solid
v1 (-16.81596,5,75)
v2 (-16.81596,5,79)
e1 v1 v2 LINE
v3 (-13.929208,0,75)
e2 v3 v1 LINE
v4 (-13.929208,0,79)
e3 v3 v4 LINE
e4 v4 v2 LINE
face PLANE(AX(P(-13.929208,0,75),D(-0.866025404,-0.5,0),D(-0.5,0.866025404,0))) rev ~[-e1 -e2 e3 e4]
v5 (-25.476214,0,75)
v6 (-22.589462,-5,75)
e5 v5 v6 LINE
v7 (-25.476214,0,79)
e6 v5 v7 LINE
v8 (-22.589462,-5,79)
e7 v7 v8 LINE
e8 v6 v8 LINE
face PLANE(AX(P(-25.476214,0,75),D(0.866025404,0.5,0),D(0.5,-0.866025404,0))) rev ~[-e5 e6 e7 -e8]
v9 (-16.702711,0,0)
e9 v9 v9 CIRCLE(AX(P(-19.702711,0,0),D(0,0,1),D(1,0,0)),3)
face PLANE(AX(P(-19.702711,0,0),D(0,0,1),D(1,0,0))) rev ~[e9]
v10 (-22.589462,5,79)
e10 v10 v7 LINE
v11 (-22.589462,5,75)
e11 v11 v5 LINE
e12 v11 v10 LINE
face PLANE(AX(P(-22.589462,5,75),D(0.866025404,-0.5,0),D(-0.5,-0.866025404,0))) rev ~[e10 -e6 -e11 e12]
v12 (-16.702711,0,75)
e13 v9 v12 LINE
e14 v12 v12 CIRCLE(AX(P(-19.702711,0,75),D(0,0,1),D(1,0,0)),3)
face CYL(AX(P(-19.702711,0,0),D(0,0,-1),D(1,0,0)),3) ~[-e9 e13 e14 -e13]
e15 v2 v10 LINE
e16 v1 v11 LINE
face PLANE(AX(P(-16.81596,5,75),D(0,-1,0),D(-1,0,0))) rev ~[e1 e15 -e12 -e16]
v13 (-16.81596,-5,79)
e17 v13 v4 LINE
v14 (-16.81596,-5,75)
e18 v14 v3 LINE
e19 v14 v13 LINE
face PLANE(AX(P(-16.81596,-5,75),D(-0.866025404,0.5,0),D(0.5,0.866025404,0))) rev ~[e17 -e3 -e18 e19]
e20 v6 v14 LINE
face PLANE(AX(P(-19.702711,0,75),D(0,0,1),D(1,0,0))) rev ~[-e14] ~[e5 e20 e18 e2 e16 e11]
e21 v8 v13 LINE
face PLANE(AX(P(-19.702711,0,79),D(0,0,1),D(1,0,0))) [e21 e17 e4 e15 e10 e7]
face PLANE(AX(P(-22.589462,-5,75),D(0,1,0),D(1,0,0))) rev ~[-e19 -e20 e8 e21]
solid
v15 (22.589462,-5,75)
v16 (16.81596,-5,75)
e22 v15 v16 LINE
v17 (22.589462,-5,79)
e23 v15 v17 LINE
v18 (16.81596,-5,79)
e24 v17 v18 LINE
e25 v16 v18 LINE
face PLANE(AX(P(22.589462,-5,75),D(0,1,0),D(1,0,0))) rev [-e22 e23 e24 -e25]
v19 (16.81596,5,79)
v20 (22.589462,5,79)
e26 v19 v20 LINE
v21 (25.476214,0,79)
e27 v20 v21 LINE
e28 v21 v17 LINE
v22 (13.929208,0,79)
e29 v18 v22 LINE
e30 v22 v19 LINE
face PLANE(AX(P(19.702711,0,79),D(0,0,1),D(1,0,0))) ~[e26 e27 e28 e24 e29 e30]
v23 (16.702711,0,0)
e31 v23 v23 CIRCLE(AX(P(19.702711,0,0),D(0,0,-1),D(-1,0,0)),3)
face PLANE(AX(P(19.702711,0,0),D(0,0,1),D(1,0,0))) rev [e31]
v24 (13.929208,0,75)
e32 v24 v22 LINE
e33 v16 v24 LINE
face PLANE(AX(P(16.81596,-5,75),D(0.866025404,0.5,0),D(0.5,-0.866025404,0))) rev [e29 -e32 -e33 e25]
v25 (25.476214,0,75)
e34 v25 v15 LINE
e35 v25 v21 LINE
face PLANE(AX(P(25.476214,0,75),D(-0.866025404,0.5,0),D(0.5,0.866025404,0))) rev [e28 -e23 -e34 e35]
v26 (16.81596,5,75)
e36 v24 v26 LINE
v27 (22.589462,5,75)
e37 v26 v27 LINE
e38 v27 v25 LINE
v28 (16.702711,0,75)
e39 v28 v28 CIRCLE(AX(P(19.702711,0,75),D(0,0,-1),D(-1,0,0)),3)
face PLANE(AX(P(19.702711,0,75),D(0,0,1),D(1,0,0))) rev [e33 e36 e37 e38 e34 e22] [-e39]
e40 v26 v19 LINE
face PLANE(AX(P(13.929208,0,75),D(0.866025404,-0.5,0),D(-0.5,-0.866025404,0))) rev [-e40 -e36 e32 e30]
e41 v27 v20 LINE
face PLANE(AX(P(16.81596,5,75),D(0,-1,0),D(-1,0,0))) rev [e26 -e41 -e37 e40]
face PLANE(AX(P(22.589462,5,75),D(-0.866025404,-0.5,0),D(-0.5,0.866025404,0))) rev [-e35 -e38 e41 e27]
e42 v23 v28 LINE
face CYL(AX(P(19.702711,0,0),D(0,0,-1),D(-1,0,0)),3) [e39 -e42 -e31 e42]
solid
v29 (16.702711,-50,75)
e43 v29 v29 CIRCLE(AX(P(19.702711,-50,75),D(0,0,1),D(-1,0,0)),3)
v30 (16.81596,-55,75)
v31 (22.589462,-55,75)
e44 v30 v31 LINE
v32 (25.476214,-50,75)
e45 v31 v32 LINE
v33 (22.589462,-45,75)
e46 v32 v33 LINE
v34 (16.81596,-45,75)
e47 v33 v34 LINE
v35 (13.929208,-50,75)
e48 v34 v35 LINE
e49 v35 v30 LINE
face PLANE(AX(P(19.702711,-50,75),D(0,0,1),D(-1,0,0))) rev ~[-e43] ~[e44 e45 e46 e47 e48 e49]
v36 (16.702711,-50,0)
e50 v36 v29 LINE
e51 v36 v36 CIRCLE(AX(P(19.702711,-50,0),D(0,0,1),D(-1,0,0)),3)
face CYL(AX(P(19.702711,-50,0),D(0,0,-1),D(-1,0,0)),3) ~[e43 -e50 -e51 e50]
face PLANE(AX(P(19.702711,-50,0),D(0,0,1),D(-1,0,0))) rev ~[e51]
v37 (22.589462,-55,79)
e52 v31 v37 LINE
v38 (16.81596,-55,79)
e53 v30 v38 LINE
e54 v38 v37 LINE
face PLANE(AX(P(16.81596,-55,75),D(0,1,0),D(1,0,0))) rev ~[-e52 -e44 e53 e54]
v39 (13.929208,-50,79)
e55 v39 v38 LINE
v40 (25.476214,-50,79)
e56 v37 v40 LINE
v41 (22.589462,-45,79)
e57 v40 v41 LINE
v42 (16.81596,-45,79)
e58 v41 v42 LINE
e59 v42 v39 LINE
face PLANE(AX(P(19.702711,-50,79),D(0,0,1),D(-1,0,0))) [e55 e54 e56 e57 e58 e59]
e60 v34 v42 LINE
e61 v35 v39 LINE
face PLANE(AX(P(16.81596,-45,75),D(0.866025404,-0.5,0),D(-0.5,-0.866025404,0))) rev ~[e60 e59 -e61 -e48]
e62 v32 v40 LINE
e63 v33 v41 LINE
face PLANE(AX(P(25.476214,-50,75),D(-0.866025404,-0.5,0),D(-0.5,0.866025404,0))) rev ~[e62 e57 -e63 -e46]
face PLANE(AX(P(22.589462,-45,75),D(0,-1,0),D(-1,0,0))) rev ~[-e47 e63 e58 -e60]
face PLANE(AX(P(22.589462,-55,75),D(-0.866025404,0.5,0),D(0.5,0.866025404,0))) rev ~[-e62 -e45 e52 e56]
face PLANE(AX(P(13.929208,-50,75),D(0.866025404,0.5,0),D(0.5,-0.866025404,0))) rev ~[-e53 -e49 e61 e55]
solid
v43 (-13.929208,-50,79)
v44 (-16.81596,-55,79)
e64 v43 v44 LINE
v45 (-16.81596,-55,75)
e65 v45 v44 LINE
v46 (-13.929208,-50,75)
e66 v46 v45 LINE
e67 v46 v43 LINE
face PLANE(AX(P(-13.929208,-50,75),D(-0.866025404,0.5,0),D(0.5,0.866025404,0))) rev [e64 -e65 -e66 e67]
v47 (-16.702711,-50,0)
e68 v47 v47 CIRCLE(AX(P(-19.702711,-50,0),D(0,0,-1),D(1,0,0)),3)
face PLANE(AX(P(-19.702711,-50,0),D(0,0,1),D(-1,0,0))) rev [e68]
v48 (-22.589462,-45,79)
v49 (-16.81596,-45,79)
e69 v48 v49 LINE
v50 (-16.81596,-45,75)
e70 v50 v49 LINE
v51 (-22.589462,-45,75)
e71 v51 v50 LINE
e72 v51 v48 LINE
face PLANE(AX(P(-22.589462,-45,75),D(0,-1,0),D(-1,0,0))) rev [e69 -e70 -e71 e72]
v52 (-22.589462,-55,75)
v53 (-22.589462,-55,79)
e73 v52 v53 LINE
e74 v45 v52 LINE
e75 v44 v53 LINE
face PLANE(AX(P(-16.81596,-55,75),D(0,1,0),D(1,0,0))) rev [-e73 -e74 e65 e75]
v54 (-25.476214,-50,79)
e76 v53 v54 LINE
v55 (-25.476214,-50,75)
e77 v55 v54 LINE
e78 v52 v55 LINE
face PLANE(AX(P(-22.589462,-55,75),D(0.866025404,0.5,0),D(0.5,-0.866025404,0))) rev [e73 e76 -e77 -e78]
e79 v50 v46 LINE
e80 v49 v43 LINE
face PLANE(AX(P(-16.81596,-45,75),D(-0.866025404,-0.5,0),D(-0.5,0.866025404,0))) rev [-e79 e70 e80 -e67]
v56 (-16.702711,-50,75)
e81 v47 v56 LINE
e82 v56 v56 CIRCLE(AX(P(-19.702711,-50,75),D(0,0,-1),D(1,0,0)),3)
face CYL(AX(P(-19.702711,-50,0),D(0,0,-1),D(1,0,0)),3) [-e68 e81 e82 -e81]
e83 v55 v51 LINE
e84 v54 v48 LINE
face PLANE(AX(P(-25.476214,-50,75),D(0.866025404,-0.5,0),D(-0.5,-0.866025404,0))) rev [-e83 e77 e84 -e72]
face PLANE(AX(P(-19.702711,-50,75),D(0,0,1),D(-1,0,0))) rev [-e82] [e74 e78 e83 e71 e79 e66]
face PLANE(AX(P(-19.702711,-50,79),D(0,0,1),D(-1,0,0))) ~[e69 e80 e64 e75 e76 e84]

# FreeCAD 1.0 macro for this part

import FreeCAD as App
import Part
import Sketcher
from FreeCAD import Vector
Q = App.Units.Quantity

doc = App.newDocument("Part")
params = doc.addObject("Spreadsheet::Sheet", "Params")
for row, (alias, value) in enumerate([
    ("sketch1_diameter", "6 mm"),
    ("pad1_length", "75 mm"),
    ("sketch2_diameter", "6 mm"),
    ("pad2_length", "75 mm"),
    ("pad3_length", "4 mm"),
    ("sketch4_diameter", "6 mm"),
    ("pad4_length", "75 mm"),
    ("sketch5_diameter", "6 mm"),
    ("pad5_length", "75 mm"),
], start=1):
    params.set(f"A{row}", alias)
    params.set(f"B{row}", "=" + value)
    params.setAlias(f"B{row}", alias)

body = doc.addObject("PartDesign::Body", "Body")

sketch1 = body.newObject("Sketcher::SketchObject", "Sketch")
sketch1.AttachmentSupport = (doc.getObject("XY_Plane"), [""])
sketch1.MapMode = "FlatFace"
sketch1.addGeometry(Part.Circle(Vector(-8.5, 0, 0), Vector(0, 0, 1), 3), False)
sketch1.addConstraint([
    Sketcher.Constraint("PointOnObject", 0, 3, -1),
    Sketcher.Constraint("Diameter", 0, Q("6 mm")),
    Sketcher.Constraint("DistanceX", 0, 3, -1, 1, Q("8.516658 mm")),
])
sketch1.setExpression("Constraints[1]", "Params.sketch1_diameter")
pad1 = body.newObject("PartDesign::Pad", "Pad")
pad1.Profile = sketch1
pad1.setExpression("Length", "Params.pad1_length")
body2 = doc.addObject("PartDesign::Body", "Body001")

sketch2 = body2.newObject("Sketcher::SketchObject", "Sketch001")
sketch2.AttachmentSupport = (doc.getObject("XY_Plane001"), [""])
sketch2.MapMode = "FlatFace"
sketch2.addGeometry(Part.Circle(Vector(-19.7, 0, 0), Vector(0, 0, 1), 3), False)
sketch2.addConstraint([
    Sketcher.Constraint("PointOnObject", 0, 3, -1),
    Sketcher.Constraint("Diameter", 0, Q("6 mm")),
    Sketcher.Constraint("DistanceX", 0, 3, -1, 1, Q("19.702711 mm")),
])
sketch2.setExpression("Constraints[1]", "Params.sketch2_diameter")
pad2 = body2.newObject("PartDesign::Pad", "Pad001")
pad2.Profile = sketch2
pad2.setExpression("Length", "Params.pad2_length")

sketch3 = body2.newObject("Sketcher::SketchObject", "Sketch002")
sketch3.AttachmentSupport = (doc.getObject("XY_Plane001"), [""])
sketch3.MapMode = "FlatFace"
sketch3.AttachmentOffset = App.Placement(Vector(0, 0, 75), App.Rotation())
sketch3.addGeometry([
    Part.LineSegment(Vector(-17, 5, 0), Vector(-23, 5, 0)),
    Part.LineSegment(Vector(-23, 5, 0), Vector(-25, 0, 0)),
    Part.LineSegment(Vector(-25, 0, 0), Vector(-23, -5, 0)),
    Part.LineSegment(Vector(-23, -5, 0), Vector(-17, -5, 0)),
    Part.LineSegment(Vector(-17, -5, 0), Vector(-14, 0, 0)),
    Part.LineSegment(Vector(-14, 0, 0), Vector(-17, 5, 0)),
], False)
sketch3.addConstraint([
    Sketcher.Constraint("Coincident", 0, 2, 1, 1),
    Sketcher.Constraint("Coincident", 1, 2, 2, 1),
    Sketcher.Constraint("Coincident", 2, 2, 3, 1),
    Sketcher.Constraint("Coincident", 3, 2, 4, 1),
    Sketcher.Constraint("Coincident", 4, 2, 5, 1),
    Sketcher.Constraint("Coincident", 5, 2, 0, 1),
    Sketcher.Constraint("Horizontal", 0),
    Sketcher.Constraint("Horizontal", 3),
    Sketcher.Constraint("Symmetric", 0, 2, 2, 2, -1),
    Sketcher.Constraint("PointOnObject", 1, 2, -1),
    Sketcher.Constraint("PointOnObject", 4, 2, -1),
    Sketcher.Constraint("Parallel", 1, 4),
    Sketcher.Constraint("Parallel", 2, 5),
    Sketcher.Constraint("Angle", 1, Q("-120 deg")),
    Sketcher.Constraint("DistanceY", -1, 1, 0, 2, Q("5 mm")),
    Sketcher.Constraint("DistanceX", 0, 2, 0, 1, Q("5.773503 mm")),
    Sketcher.Constraint("DistanceX", 3, 2, -1, 1, Q("16.81596 mm")),
])
pad3 = body2.newObject("PartDesign::Pad", "Pad002")
pad3.Profile = sketch3
pad3.setExpression("Length", "Params.pad3_length")
body3 = doc.addObject("PartDesign::Body", "Body002")

sketch4 = body3.newObject("Sketcher::SketchObject", "Sketch003")
sketch4.AttachmentSupport = (doc.getObject("XY_Plane002"), [""])
sketch4.MapMode = "FlatFace"
sketch4.addGeometry(Part.Circle(Vector(8.8, 0, 0), Vector(0, 0, 1), 3), False)
sketch4.addConstraint([
    Sketcher.Constraint("PointOnObject", 0, 3, -1),
    Sketcher.Constraint("Diameter", 0, Q("6 mm")),
    Sketcher.Constraint("DistanceX", -1, 1, 0, 3, Q("8.770876 mm")),
])
sketch4.setExpression("Constraints[1]", "Params.sketch4_diameter")
pad4 = body3.newObject("PartDesign::Pad", "Pad003")
pad4.Profile = sketch4
pad4.setExpression("Length", "Params.pad4_length")
body4 = doc.addObject("PartDesign::Body", "Body003")

sketch5 = body4.newObject("Sketcher::SketchObject", "Sketch004")
sketch5.AttachmentSupport = (doc.getObject("XY_Plane003"), [""])
sketch5.MapMode = "FlatFace"
sketch5.addGeometry(Part.Circle(Vector(16.9, 0, 0), Vector(0, 0, 1), 3), False)
sketch5.addConstraint([
    Sketcher.Constraint("PointOnObject", 0, 3, -1),
    Sketcher.Constraint("Diameter", 0, Q("6 mm")),
    Sketcher.Constraint("DistanceX", -1, 1, 0, 3, Q("16.906187 mm")),
])
sketch5.setExpression("Constraints[1]", "Params.sketch5_diameter")
pad5 = body4.newObject("PartDesign::Pad", "Pad004")
pad5.Profile = sketch5
pad5.setExpression("Length", "Params.pad5_length")
body5 = doc.addObject("PartDesign::Body", "Body004")
doc.recompute()

mirroring = doc.addObject("Part::Mirroring", "Mirroring")
mirroring.Source = body2
mirroring.Base = Vector(0, 0, 0)
mirroring.Normal = Vector(1, 0, 0)
body5.BaseFeature = mirroring
doc.recompute()
body6 = doc.addObject("PartDesign::Body", "Body005")
doc.recompute()

mirroring2 = doc.addObject("Part::Mirroring", "Mirroring001")
mirroring2.Source = body2
mirroring2.Base = Vector(0, -25, 0)
mirroring2.Normal = Vector(0, -1, 0)
body6.BaseFeature = mirroring2
doc.recompute()
body7 = doc.addObject("PartDesign::Body", "Body006")
doc.recompute()

mirroring3 = doc.addObject("Part::Mirroring", "Mirroring002")
mirroring3.Source = body5
mirroring3.Base = Vector(0, -25, 0)
mirroring3.Normal = Vector(0, -1, 0)
body7.BaseFeature = mirroring3
doc.recompute()
body.Visibility = False
body3.Visibility = False
body4.Visibility = False
mirroring.Visibility = False
mirroring2.Visibility = False
mirroring3.Visibility = False

doc.recompute()
